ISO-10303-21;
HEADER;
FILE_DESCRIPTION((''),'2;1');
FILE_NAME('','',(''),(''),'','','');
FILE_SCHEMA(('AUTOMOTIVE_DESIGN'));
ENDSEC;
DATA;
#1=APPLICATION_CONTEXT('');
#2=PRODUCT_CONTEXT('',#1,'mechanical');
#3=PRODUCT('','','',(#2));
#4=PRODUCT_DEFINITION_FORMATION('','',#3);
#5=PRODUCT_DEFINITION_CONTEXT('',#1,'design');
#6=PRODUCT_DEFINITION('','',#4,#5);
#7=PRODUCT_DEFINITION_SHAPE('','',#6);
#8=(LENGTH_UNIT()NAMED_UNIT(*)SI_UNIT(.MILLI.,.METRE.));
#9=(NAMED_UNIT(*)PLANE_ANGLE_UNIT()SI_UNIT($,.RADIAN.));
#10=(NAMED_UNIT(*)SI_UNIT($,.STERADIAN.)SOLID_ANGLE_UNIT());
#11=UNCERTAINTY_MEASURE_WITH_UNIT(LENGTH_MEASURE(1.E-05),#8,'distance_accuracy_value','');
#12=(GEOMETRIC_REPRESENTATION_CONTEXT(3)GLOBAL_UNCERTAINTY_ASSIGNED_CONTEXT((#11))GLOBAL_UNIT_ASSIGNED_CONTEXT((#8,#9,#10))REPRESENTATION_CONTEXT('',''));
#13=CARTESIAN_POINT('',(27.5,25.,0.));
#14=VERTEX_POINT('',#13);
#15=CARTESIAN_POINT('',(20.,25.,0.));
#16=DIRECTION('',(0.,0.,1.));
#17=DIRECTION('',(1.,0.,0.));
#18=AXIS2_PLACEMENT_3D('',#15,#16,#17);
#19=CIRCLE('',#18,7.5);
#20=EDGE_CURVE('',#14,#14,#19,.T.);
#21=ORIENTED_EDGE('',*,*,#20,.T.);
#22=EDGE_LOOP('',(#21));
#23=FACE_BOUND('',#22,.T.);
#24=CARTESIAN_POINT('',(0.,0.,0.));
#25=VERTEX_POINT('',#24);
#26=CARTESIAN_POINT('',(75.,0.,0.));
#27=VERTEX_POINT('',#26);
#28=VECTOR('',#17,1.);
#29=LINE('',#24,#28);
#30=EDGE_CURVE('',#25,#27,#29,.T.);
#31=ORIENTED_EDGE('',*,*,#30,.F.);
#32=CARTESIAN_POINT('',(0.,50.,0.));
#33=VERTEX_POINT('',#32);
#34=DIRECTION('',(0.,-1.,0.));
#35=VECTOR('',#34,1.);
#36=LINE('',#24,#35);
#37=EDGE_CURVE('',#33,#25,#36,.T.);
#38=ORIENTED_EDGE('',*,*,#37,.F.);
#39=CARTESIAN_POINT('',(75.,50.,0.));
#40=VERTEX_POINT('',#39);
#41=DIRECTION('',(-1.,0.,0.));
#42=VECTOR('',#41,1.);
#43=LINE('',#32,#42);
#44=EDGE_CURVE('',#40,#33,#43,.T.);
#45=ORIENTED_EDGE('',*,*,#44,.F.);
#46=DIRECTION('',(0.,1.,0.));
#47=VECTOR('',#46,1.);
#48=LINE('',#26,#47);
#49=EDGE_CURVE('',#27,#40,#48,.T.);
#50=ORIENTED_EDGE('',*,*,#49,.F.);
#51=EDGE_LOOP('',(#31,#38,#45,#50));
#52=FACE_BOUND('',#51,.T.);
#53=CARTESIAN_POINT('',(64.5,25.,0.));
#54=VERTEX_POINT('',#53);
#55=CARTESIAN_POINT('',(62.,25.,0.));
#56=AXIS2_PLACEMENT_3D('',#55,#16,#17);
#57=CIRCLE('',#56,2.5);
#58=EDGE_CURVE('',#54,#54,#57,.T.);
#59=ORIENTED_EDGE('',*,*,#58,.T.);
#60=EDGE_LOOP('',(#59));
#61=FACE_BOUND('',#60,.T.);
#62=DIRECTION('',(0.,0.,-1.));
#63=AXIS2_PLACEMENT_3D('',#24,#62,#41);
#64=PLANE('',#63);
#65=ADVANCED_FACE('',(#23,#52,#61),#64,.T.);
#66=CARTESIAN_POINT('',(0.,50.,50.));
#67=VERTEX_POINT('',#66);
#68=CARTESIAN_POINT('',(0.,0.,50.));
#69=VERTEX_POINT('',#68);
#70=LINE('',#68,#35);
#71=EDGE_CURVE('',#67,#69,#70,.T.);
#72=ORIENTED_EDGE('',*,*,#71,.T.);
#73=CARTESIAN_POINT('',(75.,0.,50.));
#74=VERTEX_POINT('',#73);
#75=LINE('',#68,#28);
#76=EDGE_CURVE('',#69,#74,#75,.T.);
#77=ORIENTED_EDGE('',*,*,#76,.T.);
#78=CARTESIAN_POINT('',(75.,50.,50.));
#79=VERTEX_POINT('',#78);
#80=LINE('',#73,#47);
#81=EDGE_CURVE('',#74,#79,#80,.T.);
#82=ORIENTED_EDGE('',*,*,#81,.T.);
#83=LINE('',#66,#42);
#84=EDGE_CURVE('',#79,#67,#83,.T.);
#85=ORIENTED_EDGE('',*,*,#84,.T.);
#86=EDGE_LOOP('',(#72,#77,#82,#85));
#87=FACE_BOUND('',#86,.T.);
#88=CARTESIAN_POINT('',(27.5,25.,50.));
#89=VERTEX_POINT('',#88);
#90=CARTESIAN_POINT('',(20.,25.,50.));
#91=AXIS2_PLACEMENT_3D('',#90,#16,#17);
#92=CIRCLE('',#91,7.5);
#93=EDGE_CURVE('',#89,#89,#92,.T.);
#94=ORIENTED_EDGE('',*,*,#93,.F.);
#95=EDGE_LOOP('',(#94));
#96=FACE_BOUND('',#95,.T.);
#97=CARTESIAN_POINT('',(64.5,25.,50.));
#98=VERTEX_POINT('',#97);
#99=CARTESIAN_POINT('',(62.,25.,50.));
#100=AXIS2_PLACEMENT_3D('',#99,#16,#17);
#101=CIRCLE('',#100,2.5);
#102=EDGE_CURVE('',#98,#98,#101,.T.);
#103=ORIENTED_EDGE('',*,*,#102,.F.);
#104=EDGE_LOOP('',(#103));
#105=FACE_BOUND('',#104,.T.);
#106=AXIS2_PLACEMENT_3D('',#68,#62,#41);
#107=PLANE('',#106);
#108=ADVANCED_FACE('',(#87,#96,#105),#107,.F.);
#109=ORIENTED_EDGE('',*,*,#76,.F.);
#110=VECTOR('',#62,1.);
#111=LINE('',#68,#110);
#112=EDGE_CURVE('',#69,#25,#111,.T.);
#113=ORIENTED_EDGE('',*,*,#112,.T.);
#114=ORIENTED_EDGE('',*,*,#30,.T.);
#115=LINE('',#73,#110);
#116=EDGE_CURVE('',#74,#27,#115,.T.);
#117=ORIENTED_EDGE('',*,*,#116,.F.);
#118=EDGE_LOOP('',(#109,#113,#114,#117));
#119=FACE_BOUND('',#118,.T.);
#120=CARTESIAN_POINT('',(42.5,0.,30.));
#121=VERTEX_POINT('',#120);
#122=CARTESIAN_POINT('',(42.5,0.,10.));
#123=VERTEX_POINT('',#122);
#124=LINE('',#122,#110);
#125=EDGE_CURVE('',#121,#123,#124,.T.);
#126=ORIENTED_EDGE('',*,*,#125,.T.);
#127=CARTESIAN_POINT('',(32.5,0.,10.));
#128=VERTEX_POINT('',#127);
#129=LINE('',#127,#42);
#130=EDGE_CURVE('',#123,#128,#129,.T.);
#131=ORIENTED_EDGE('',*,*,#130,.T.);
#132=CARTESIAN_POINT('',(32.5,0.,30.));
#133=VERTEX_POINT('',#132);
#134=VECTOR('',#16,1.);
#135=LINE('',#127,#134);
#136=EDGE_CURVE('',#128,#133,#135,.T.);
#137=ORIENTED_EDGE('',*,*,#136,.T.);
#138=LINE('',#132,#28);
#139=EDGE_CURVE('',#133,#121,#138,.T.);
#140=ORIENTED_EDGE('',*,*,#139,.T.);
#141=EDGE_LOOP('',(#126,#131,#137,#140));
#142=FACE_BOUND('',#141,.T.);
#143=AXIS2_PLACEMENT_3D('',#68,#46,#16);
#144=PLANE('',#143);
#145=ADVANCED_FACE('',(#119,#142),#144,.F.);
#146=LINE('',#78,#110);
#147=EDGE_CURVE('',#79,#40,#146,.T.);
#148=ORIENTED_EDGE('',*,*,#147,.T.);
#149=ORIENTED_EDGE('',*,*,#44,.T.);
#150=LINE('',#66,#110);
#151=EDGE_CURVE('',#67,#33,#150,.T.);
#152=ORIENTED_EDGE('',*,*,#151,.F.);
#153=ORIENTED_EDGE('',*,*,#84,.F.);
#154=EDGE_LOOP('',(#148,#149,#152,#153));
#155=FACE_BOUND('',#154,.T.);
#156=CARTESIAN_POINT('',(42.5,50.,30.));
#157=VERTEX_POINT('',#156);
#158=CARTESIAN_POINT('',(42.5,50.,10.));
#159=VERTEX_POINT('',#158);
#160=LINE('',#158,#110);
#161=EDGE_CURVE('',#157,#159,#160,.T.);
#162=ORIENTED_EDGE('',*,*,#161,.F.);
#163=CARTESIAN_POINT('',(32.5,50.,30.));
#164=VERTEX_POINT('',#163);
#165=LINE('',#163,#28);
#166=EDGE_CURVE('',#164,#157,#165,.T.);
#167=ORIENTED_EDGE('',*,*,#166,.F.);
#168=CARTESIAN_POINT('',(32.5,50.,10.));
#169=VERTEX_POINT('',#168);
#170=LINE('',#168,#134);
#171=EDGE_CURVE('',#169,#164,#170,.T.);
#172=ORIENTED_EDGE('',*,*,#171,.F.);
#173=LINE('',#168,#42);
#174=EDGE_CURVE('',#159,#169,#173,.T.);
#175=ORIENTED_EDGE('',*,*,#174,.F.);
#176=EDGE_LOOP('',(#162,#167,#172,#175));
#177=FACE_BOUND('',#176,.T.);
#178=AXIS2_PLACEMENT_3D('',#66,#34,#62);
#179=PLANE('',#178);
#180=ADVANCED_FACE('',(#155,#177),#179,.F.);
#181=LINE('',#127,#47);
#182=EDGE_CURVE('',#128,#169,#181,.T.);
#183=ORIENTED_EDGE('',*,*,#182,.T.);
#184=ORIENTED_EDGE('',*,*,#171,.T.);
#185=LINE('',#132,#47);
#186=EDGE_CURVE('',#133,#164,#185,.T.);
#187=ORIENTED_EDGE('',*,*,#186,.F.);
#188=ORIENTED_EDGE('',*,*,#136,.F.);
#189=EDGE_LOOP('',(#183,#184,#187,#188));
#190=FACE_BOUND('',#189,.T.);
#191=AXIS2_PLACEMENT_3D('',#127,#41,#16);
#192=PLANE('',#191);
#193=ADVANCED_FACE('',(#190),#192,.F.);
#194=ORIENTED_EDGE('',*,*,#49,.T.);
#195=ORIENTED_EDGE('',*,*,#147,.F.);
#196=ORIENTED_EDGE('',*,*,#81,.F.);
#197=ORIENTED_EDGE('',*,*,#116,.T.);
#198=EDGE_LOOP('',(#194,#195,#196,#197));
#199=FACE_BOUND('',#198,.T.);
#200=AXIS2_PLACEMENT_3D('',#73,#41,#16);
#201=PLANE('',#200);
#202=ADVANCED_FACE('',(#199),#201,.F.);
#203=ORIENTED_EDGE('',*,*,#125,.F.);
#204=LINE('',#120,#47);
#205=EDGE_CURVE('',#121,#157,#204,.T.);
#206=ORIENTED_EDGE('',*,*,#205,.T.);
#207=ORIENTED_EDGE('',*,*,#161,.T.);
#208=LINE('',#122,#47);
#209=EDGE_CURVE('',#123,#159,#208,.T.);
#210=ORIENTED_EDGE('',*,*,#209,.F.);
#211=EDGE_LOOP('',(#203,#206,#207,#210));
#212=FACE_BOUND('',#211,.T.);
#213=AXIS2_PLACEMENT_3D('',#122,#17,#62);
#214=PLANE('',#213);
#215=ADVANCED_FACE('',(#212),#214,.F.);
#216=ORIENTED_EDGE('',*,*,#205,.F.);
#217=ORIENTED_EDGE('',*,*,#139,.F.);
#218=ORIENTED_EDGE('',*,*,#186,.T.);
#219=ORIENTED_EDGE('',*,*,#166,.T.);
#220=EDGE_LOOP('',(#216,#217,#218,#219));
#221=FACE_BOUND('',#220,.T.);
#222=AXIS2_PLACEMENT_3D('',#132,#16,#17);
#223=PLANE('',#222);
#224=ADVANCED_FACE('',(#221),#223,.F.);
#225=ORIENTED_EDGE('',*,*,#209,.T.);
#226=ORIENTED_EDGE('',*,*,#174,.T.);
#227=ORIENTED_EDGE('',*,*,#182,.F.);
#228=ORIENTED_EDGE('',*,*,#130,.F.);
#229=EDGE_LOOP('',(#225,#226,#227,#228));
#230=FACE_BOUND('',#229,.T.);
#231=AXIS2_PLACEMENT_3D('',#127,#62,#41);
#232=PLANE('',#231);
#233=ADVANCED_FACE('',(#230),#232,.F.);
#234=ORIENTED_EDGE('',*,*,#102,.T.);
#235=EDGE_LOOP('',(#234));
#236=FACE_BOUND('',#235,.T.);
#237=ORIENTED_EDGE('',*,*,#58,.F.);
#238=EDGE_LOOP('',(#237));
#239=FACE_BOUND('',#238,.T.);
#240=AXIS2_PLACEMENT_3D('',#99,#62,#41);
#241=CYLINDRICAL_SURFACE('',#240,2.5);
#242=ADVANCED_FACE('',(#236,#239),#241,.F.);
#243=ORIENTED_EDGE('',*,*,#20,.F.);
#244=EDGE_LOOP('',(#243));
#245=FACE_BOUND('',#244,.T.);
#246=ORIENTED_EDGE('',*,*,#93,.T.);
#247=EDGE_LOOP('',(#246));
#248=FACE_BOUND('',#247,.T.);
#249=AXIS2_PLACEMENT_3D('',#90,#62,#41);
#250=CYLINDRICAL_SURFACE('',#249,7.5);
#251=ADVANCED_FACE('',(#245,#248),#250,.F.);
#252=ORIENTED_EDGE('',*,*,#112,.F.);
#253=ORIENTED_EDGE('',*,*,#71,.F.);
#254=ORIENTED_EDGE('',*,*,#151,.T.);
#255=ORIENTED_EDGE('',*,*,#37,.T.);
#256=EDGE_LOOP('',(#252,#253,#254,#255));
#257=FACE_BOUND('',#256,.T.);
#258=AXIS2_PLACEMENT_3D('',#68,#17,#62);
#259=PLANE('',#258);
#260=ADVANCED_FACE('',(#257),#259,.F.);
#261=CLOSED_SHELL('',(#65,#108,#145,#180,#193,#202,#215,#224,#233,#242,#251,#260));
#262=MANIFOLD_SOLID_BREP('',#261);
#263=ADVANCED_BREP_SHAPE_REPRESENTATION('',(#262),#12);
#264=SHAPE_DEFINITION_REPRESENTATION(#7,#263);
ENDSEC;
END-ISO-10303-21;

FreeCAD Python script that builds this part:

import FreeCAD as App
import Part
import Sketcher
from FreeCAD import Vector


def add_polygon(sketch, points):
    """Adds a closed chain of lines whose ends are joined by coincident constraints."""
    first, n = sketch.GeometryCount, len(points)
    for a, b in zip(points, points[1:] + points[:1]):
        sketch.addGeometry(Part.LineSegment(App.Vector(*a, 0), App.Vector(*b, 0)), False)
    for i in range(n):
        sketch.addConstraint(Sketcher.Constraint("Coincident", first + i, 2, first + (i + 1) % n, 1))

doc = App.newDocument("Part")
body = doc.addObject("PartDesign::Body", "Body")

# Sketch on XY plane
sketch1 = body.newObject("Sketcher::SketchObject", "Sketch")
sketch1.AttachmentSupport = (doc.getObject("XY_Plane"), [""])
sketch1.MapMode = "FlatFace"
add_polygon(sketch1, [(0, 50), (0, 0), (75, 0), (75, 50)])  # lines 0-3
sketch1.addGeometry(Part.Circle(Vector(20, 25, 0), Vector(0, 0, 1), 7.5), False)  # 4
sketch1.addGeometry(Part.Circle(Vector(62, 25, 0), Vector(0, 0, 1), 2.5), False)  # 5
sketch1.addConstraint([
    Sketcher.Constraint("Vertical", 0),
    Sketcher.Constraint("Horizontal", 1),
    Sketcher.Constraint("Vertical", 2),
    Sketcher.Constraint("Horizontal", 3),
    Sketcher.Constraint("Coincident", 0, 2, -1, 1),
    Sketcher.Constraint("Horizontal", 4, 3, 5, 3),
    Sketcher.Constraint("Diameter", 4, 15.0),
    Sketcher.Constraint("Diameter", 5, 5.0),
    Sketcher.Constraint("DistanceX", 1, 1, 1, 2, 75.0),
    Sketcher.Constraint("DistanceY", 0, 2, 0, 1, 50.0),
    Sketcher.Constraint("DistanceX", -1, 1, 4, 3, 20.0),
    Sketcher.Constraint("DistanceY", -1, 1, 4, 3, 25.0),
    Sketcher.Constraint("DistanceX", -1, 1, 5, 3, 62.0),
])
pad1 = body.newObject("PartDesign::Pad", "Pad")
pad1.Profile = sketch1
pad1.Length = 50

# Sketch on XZ plane
sketch2 = body.newObject("Sketcher::SketchObject", "Sketch001")
sketch2.AttachmentSupport = (doc.getObject("XZ_Plane"), [""])
sketch2.MapMode = "FlatFace"
sketch2.AttachmentOffset = App.Placement(Vector(0, 0, -50), App.Rotation())
add_polygon(sketch2, [(32, 10), (32, 30), (42, 30), (42, 10)])  # lines 0-3
sketch2.addConstraint([
    Sketcher.Constraint("Vertical", 0),
    Sketcher.Constraint("Horizontal", 1),
    Sketcher.Constraint("Vertical", 2),
    Sketcher.Constraint("Horizontal", 3),
    Sketcher.Constraint("DistanceX", 1, 1, 1, 2, 10.0),
    Sketcher.Constraint("DistanceY", 0, 1, 0, 2, 20.0),
    Sketcher.Constraint("DistanceY", -1, 1, 0, 2, 30.0),
    Sketcher.Constraint("DistanceX", -1, 1, 0, 2, 32.5),
])
pocket1 = body.newObject("PartDesign::Pocket", "Pocket")
pocket1.Profile = sketch2
pocket1.Type = "ThroughAll"
pocket1.Reversed = True

doc.recompute()
